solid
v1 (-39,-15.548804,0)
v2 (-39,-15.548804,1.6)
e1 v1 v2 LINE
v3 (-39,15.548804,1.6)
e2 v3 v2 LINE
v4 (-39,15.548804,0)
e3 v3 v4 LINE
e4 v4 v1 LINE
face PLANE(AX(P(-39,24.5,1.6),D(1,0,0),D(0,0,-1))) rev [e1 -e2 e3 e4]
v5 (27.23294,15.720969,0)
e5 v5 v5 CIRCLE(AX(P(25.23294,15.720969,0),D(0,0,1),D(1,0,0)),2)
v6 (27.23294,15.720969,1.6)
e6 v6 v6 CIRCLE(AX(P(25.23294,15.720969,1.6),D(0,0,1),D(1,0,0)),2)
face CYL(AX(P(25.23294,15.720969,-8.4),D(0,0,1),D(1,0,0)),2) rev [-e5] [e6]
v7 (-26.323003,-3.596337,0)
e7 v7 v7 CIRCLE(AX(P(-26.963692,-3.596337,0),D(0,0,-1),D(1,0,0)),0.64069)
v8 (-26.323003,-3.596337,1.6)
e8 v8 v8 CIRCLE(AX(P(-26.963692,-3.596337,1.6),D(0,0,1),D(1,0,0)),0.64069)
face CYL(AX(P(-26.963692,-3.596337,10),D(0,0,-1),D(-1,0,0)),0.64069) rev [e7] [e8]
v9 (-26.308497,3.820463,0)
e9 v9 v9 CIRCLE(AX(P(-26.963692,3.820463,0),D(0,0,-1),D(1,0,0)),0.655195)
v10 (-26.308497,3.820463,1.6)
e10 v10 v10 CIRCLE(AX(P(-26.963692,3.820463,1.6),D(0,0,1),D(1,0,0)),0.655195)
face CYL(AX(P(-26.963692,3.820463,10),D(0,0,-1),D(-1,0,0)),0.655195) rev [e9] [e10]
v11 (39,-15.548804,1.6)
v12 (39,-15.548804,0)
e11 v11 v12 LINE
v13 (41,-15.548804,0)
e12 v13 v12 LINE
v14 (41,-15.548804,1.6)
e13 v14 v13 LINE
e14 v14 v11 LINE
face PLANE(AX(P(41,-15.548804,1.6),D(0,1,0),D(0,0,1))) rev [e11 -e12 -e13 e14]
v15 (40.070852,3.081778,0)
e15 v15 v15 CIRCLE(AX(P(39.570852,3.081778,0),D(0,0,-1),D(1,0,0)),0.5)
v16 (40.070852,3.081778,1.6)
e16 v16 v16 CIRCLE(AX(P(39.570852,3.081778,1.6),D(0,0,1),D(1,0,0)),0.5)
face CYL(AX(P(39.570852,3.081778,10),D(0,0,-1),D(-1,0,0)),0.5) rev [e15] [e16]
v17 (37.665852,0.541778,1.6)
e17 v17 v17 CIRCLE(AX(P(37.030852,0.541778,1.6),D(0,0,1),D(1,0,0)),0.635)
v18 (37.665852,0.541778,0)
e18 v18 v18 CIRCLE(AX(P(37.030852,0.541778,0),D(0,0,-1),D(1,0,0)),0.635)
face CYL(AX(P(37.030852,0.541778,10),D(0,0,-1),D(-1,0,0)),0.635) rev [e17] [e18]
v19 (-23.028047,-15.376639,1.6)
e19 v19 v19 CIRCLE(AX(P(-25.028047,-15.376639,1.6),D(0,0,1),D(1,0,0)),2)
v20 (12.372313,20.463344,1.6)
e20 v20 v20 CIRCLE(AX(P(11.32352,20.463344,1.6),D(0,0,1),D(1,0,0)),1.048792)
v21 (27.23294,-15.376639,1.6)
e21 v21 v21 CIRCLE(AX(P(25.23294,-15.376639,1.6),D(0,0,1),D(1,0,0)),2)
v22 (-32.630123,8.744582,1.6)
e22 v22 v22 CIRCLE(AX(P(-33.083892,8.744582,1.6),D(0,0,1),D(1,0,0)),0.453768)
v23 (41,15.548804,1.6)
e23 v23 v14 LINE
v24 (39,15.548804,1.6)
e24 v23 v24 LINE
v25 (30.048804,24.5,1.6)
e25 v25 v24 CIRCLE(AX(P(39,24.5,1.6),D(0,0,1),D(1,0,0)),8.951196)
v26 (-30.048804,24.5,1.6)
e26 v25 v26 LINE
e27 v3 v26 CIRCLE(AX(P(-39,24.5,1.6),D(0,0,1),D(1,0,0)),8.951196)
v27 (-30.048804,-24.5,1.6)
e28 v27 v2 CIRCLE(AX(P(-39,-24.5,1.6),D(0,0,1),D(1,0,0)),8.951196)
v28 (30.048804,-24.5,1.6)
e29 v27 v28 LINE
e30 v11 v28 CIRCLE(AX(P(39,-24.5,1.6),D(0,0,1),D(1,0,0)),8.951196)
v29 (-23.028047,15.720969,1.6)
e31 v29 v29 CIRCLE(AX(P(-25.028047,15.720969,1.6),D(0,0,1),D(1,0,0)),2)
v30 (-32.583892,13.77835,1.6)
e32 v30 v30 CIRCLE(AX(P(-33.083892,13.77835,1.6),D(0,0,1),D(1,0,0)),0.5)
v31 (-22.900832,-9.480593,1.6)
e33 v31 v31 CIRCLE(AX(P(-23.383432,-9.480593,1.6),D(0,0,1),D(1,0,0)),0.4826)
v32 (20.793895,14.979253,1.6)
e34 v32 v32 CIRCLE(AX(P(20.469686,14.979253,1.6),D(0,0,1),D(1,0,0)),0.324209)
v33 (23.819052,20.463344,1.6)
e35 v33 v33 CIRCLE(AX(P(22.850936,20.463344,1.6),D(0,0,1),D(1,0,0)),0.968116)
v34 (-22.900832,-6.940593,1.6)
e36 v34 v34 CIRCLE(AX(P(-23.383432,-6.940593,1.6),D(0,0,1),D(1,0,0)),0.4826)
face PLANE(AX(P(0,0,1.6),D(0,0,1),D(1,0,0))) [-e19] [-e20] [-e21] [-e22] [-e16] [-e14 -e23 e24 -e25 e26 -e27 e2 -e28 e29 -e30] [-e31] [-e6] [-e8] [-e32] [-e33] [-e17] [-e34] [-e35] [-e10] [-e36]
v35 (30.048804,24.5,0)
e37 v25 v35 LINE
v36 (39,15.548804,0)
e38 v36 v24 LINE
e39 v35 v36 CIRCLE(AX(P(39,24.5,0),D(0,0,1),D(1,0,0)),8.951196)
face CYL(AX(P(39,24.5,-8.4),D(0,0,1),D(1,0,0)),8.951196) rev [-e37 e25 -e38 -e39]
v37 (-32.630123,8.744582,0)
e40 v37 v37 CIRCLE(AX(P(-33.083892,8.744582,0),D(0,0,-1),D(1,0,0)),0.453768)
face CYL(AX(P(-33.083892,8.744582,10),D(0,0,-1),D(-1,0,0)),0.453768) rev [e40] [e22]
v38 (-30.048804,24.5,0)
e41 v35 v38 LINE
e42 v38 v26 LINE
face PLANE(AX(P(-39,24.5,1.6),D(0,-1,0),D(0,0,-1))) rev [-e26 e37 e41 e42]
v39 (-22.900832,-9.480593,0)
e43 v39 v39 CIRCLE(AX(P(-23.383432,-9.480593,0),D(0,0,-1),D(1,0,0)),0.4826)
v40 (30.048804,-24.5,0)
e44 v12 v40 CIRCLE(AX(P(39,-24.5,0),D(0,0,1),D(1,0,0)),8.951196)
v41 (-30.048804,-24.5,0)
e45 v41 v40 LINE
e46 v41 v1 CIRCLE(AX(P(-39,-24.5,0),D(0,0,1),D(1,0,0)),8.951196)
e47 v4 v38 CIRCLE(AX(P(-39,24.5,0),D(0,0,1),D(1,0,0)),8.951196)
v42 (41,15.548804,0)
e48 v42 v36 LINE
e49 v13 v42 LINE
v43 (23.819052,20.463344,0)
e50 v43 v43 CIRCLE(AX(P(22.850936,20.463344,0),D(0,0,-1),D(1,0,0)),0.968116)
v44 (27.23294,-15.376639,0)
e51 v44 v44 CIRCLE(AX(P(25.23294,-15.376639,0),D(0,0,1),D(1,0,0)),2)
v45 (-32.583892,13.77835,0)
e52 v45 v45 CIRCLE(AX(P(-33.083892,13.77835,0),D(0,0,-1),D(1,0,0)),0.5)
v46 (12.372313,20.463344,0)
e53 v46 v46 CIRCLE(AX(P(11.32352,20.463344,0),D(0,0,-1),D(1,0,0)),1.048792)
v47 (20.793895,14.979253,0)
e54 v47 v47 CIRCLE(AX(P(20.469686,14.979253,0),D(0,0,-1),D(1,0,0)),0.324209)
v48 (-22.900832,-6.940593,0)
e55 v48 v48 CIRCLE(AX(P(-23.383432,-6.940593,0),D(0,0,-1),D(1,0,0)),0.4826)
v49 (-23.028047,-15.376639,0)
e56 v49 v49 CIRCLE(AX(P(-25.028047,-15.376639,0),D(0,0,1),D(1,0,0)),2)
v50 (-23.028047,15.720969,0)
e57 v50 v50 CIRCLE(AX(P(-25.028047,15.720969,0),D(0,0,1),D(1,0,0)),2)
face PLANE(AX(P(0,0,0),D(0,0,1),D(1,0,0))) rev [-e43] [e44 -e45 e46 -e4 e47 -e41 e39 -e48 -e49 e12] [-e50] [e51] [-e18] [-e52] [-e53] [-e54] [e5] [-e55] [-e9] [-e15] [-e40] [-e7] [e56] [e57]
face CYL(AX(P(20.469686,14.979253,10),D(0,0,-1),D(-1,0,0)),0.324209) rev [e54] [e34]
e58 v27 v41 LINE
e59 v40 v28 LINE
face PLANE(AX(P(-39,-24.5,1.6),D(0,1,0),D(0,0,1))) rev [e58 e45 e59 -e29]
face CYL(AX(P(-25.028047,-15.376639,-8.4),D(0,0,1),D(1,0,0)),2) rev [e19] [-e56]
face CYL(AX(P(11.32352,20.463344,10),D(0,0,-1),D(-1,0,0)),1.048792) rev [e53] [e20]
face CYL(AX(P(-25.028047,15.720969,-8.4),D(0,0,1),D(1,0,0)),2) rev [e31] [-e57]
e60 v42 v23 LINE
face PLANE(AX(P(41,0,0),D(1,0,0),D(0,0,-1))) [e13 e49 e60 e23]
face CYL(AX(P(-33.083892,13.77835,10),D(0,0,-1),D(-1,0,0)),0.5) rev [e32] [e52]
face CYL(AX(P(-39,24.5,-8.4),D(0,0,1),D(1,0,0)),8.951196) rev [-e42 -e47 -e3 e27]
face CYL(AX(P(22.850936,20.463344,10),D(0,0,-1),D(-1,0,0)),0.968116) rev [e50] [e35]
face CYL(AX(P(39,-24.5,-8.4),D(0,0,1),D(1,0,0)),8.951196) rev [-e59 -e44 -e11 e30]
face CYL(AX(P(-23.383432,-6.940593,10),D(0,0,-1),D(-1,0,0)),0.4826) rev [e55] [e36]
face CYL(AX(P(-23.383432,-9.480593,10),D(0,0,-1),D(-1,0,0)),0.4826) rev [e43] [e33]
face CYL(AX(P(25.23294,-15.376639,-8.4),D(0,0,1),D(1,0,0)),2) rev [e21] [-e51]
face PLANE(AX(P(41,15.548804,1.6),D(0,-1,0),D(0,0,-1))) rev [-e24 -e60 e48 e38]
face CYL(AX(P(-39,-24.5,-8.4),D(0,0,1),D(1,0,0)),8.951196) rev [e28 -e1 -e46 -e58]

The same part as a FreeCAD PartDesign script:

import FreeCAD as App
import Part
import Sketcher

V = App.Vector


def add_polygon(sketch, points):
    """Adds a closed chain of lines whose ends are joined by coincident constraints."""
    first, n = sketch.GeometryCount, len(points)
    for a, b in zip(points, points[1:] + points[:1]):
        sketch.addGeometry(Part.LineSegment(App.Vector(*a, 0), App.Vector(*b, 0)), False)
    for i in range(n):
        sketch.addConstraint(Sketcher.Constraint("Coincident", first + i, 2, first + (i + 1) % n, 1))

doc = App.newDocument("Part")
params = doc.addObject("Spreadsheet::Sheet", "Params")
for row, (alias, value) in enumerate([
    ("sketch1_width", "78 mm"),
    ("sketch1_height", "49 mm"),
    ("pad1_length", "1.6 mm"),
    ("pocket1_length", "10 mm"),
    ("sketch3_height", "1.6 mm"),
    ("pad2_length", "2 mm"),
    ("sketch4_diameter", "1 mm"),
    ("sketch4_diameter2", "1.27 mm"),
    ("pocket2_length", "10 mm"),
    ("sketch5_diameter", "4 mm"),
    ("pocket3_length", "10 mm"),
], start=1):
    params.set(f"A{row}", alias)
    params.set(f"B{row}", "=" + value)
    params.setAlias(f"B{row}", alias)

body = doc.addObject("PartDesign::Body", "Body")

# Sketch on XY plane
sketch1 = doc.addObject("Sketcher::SketchObject", "Sketch")
body.addObject(sketch1)
sketch1.AttachmentSupport = (doc.XY_Plane, [""])
sketch1.MapMode = "FlatFace"
add_polygon(sketch1, [(-39, 24.5), (-39, -24.5), (39, -24.5), (39, 24.5)])  # lines 0-3
sketch1.addConstraint([
    Sketcher.Constraint("Vertical", 0),
    Sketcher.Constraint("Horizontal", 1),
    Sketcher.Constraint("Vertical", 2),
    Sketcher.Constraint("Horizontal", 3),
    Sketcher.Constraint("Symmetric", 0, 2, 2, 2, -1, 1),
    Sketcher.Constraint("DistanceX", 1, 1, 1, 2, 78.0),
    Sketcher.Constraint("DistanceY", 0, 2, 0, 1, 49.0),
])
sketch1.setExpression("Constraints[9]", "Params.sketch1_width")
sketch1.setExpression("Constraints[10]", "Params.sketch1_height")
pad1 = doc.addObject("PartDesign::Pad", "Pad")
body.addObject(pad1)
pad1.Profile = sketch1
pad1.setExpression("Length", "Params.pad1_length")

# Sketch on XY plane
sketch2 = doc.addObject("Sketcher::SketchObject", "Sketch001")
body.addObject(sketch2)
sketch2.AttachmentSupport = (doc.XY_Plane, [""])
sketch2.MapMode = "FlatFace"
sketch2.AttachmentOffset = App.Placement(V(0, 0, 1.6), App.Rotation())
sketch2.addGeometry([
    Part.Circle(V(39, 24.5, 0), V(0, 0, 1), 8.951196),
    Part.Circle(V(39, -24.5, 0), V(0, 0, 1), 8.951196),
    Part.Circle(V(-39, 24.5, 0), V(0, 0, 1), 8.951196),
    Part.Circle(V(-39, -24.5, 0), V(0, 0, 1), 8.951196),
], False)
sketch2.addConstraint([
    Sketcher.Constraint("Equal", 0, 1),
    Sketcher.Constraint("Equal", 1, 2),
    Sketcher.Constraint("Equal", 2, 3),
    Sketcher.Constraint("Symmetric", 1, 3, 2, 3, -1, 1),
    Sketcher.Constraint("Symmetric", 0, 3, 3, 3, -1, 1),
    Sketcher.Constraint("Symmetric", 0, 3, 2, 3, -2),
    Sketcher.Constraint("DistanceX", -1, 1, 0, 3, 39.0),
    Sketcher.Constraint("DistanceY", 1, 3, 0, 3, 49.0),
    Sketcher.Constraint("Diameter", 0, 17.902392),
])
pocket1 = doc.addObject("PartDesign::Pocket", "Pocket")
body.addObject(pocket1)
pocket1.Profile = sketch2
pocket1.setExpression("Length", "Params.pocket1_length")

# Sketch on YZ plane
sketch3 = doc.addObject("Sketcher::SketchObject", "Sketch002")
body.addObject(sketch3)
sketch3.AttachmentSupport = (doc.YZ_Plane, [""])
sketch3.MapMode = "FlatFace"
sketch3.AttachmentOffset = App.Placement(V(0, 0, 39), App.Rotation())
add_polygon(sketch3, [(15.548804, 1.6), (-15.548804, 1.6), (-15.548804, 0), (15.548804, 0)])  # lines 0-3
sketch3.addConstraint([
    Sketcher.Constraint("Horizontal", 0),
    Sketcher.Constraint("Vertical", 1),
    Sketcher.Constraint("Horizontal", 2),
    Sketcher.Constraint("Vertical", 3),
    Sketcher.Constraint("Symmetric", 1, 2, 2, 2, -1, 1),
    Sketcher.Constraint("DistanceY", 1, 2, 1, 1, 1.6),
    Sketcher.Constraint("DistanceX", 0, 2, 0, 1, 31.097608),
])
sketch3.setExpression("Constraints[9]", "Params.sketch3_height")
pad2 = doc.addObject("PartDesign::Pad", "Pad001")
body.addObject(pad2)
pad2.Profile = sketch3
pad2.setExpression("Length", "Params.pad2_length")

# Sketch on XY plane
sketch4 = doc.addObject("Sketcher::SketchObject", "Sketch003")
body.addObject(sketch4)
sketch4.AttachmentSupport = (doc.XY_Plane, [""])
sketch4.MapMode = "FlatFace"
sketch4.addGeometry([
    Part.Circle(V(22.850936, 20.463344, 0), V(0, 0, 1), 0.968116),  # 0
    Part.Circle(V(11.32352, 20.463344, 0), V(0, 0, 1), 1.048792),  # 1
    Part.Circle(V(20.469686, 14.979253, 0), V(0, 0, 1), 0.324209),  # 2
    Part.Circle(V(-26.963692, -3.596337, 0), V(0, 0, 1), 0.64069),  # 3
    Part.Circle(V(-26.963692, 3.820463, 0), V(0, 0, 1), 0.655195),  # 4
    Part.Circle(V(-33.083892, 8.744582, 0), V(0, 0, 1), 0.453768),  # 5
    Part.Circle(V(-33.083892, 13.77835, 0), V(0, 0, 1), 0.5),  # 6
    Part.Circle(V(-23.383432, -9.480593, 0), V(0, 0, 1), 0.4826),  # 7
    Part.Circle(V(-23.383432, -6.940593, 0), V(0, 0, 1), 0.4826),  # 8
    Part.Circle(V(39.570852, 3.081778, 0), V(0, 0, 1), 0.5),  # 9
    Part.Circle(V(37.030852, 0.541778, 0), V(0, 0, 1), 0.635),  # 10
], False)
sketch4.addConstraint([
    Sketcher.Constraint("Equal", 7, 8),
    Sketcher.Constraint("Equal", 6, 9),
    Sketcher.Constraint("Horizontal", 0, 3, 1, 3),
    Sketcher.Constraint("Vertical", 3, 3, 4, 3),
    Sketcher.Constraint("Vertical", 5, 3, 6, 3),
    Sketcher.Constraint("Vertical", 7, 3, 8, 3),
    Sketcher.Constraint("Diameter", 6, 1.0),
    Sketcher.Constraint("Diameter", 10, 1.27),
    Sketcher.Constraint("Diameter", 7, 0.9652),
    Sketcher.Constraint("Diameter", 0, 1.936232),
    Sketcher.Constraint("Diameter", 2, 0.648419),
    Sketcher.Constraint("Diameter", 3, 1.281379),
    Sketcher.Constraint("Diameter", 4, 1.31039),
    Sketcher.Constraint("DistanceY", 7, 3, 8, 3, 2.54),
    Sketcher.Constraint("DistanceX", 10, 3, 9, 3, 2.54),
    Sketcher.Constraint("DistanceY", 10, 3, 9, 3, 2.54),
    Sketcher.Constraint("Diameter", 1, 2.097584),
    Sketcher.Constraint("Diameter", 5, 0.907536),
    Sketcher.Constraint("DistanceY", 3, 3, 4, 3, 7.4168),
    Sketcher.Constraint("DistanceX", 5, 3, 4, 3, 6.1202),
    Sketcher.Constraint("DistanceX", -1, 1, 1, 3, 11.32352),
    Sketcher.Constraint("DistanceX", 5, 3, -1, 1, 33.083892),
    Sketcher.Constraint("DistanceY", -1, 1, 6, 3, 13.77835),
    Sketcher.Constraint("DistanceX", -1, 1, 9, 3, 39.570852),
    Sketcher.Constraint("DistanceX", 2, 3, 0, 3, 2.38125),
    Sketcher.Constraint("DistanceY", 2, 3, 0, 3, 5.484091),
    Sketcher.Constraint("DistanceY", 3, 3, 1, 3, 24.059682),
    Sketcher.Constraint("DistanceX", 3, 3, 0, 3, 49.814628),
    Sketcher.Constraint("DistanceY", 4, 3, 5, 3, 4.924119),
    Sketcher.Constraint("DistanceY", 5, 3, 6, 3, 5.033768),
    Sketcher.Constraint("DistanceX", 3, 3, 7, 3, 3.58026),
    Sketcher.Constraint("DistanceY", 8, 3, 9, 3, 10.02237),
    Sketcher.Constraint("DistanceY", 7, 3, -1, 1, 9.480593),
])
sketch4.setExpression("Constraints[6]", "Params.sketch4_diameter")
sketch4.setExpression("Constraints[7]", "Params.sketch4_diameter2")
pocket2 = doc.addObject("PartDesign::Pocket", "Pocket001")
body.addObject(pocket2)
pocket2.Profile = sketch4
pocket2.setExpression("Length", "Params.pocket2_length")
pocket2.Reversed = True

# Sketch on XY plane
sketch5 = doc.addObject("Sketcher::SketchObject", "Sketch004")
body.addObject(sketch5)
sketch5.AttachmentSupport = (doc.XY_Plane, [""])
sketch5.MapMode = "FlatFace"
sketch5.AttachmentOffset = App.Placement(V(0, 0, 1.6), App.Rotation())
sketch5.addGeometry([
    Part.Circle(V(25.23294, -15.376639, 0), V(0, 0, 1), 2),
    Part.Circle(V(-25.028047, -15.376639, 0), V(0, 0, 1), 2),
    Part.Circle(V(-25.028047, 15.720969, 0), V(0, 0, 1), 2),
    Part.Circle(V(25.23294, 15.720969, 0), V(0, 0, 1), 2),
], False)
sketch5.addConstraint([
    Sketcher.Constraint("Equal", 0, 1),
    Sketcher.Constraint("Equal", 1, 2),
    Sketcher.Constraint("Equal", 2, 3),
    Sketcher.Constraint("Horizontal", 0, 3, 1, 3),
    Sketcher.Constraint("Horizontal", 2, 3, 3, 3),
    Sketcher.Constraint("Vertical", 1, 3, 2, 3),
    Sketcher.Constraint("Vertical", 0, 3, 3, 3),
    Sketcher.Constraint("Diameter", 0, 4.0),
    Sketcher.Constraint("DistanceX", -1, 1, 0, 3, 25.23294),
    Sketcher.Constraint("DistanceY", 0, 3, -1, 1, 15.376639),
    Sketcher.Constraint("DistanceY", -1, 1, 2, 3, 15.720969),
    Sketcher.Constraint("DistanceX", 1, 3, -1, 1, 25.028047),
])
sketch5.setExpression("Constraints[7]", "Params.sketch5_diameter")
pocket3 = doc.addObject("PartDesign::Pocket", "Pocket002")
body.addObject(pocket3)
pocket3.Profile = sketch5
pocket3.setExpression("Length", "Params.pocket3_length")

doc.recompute()
